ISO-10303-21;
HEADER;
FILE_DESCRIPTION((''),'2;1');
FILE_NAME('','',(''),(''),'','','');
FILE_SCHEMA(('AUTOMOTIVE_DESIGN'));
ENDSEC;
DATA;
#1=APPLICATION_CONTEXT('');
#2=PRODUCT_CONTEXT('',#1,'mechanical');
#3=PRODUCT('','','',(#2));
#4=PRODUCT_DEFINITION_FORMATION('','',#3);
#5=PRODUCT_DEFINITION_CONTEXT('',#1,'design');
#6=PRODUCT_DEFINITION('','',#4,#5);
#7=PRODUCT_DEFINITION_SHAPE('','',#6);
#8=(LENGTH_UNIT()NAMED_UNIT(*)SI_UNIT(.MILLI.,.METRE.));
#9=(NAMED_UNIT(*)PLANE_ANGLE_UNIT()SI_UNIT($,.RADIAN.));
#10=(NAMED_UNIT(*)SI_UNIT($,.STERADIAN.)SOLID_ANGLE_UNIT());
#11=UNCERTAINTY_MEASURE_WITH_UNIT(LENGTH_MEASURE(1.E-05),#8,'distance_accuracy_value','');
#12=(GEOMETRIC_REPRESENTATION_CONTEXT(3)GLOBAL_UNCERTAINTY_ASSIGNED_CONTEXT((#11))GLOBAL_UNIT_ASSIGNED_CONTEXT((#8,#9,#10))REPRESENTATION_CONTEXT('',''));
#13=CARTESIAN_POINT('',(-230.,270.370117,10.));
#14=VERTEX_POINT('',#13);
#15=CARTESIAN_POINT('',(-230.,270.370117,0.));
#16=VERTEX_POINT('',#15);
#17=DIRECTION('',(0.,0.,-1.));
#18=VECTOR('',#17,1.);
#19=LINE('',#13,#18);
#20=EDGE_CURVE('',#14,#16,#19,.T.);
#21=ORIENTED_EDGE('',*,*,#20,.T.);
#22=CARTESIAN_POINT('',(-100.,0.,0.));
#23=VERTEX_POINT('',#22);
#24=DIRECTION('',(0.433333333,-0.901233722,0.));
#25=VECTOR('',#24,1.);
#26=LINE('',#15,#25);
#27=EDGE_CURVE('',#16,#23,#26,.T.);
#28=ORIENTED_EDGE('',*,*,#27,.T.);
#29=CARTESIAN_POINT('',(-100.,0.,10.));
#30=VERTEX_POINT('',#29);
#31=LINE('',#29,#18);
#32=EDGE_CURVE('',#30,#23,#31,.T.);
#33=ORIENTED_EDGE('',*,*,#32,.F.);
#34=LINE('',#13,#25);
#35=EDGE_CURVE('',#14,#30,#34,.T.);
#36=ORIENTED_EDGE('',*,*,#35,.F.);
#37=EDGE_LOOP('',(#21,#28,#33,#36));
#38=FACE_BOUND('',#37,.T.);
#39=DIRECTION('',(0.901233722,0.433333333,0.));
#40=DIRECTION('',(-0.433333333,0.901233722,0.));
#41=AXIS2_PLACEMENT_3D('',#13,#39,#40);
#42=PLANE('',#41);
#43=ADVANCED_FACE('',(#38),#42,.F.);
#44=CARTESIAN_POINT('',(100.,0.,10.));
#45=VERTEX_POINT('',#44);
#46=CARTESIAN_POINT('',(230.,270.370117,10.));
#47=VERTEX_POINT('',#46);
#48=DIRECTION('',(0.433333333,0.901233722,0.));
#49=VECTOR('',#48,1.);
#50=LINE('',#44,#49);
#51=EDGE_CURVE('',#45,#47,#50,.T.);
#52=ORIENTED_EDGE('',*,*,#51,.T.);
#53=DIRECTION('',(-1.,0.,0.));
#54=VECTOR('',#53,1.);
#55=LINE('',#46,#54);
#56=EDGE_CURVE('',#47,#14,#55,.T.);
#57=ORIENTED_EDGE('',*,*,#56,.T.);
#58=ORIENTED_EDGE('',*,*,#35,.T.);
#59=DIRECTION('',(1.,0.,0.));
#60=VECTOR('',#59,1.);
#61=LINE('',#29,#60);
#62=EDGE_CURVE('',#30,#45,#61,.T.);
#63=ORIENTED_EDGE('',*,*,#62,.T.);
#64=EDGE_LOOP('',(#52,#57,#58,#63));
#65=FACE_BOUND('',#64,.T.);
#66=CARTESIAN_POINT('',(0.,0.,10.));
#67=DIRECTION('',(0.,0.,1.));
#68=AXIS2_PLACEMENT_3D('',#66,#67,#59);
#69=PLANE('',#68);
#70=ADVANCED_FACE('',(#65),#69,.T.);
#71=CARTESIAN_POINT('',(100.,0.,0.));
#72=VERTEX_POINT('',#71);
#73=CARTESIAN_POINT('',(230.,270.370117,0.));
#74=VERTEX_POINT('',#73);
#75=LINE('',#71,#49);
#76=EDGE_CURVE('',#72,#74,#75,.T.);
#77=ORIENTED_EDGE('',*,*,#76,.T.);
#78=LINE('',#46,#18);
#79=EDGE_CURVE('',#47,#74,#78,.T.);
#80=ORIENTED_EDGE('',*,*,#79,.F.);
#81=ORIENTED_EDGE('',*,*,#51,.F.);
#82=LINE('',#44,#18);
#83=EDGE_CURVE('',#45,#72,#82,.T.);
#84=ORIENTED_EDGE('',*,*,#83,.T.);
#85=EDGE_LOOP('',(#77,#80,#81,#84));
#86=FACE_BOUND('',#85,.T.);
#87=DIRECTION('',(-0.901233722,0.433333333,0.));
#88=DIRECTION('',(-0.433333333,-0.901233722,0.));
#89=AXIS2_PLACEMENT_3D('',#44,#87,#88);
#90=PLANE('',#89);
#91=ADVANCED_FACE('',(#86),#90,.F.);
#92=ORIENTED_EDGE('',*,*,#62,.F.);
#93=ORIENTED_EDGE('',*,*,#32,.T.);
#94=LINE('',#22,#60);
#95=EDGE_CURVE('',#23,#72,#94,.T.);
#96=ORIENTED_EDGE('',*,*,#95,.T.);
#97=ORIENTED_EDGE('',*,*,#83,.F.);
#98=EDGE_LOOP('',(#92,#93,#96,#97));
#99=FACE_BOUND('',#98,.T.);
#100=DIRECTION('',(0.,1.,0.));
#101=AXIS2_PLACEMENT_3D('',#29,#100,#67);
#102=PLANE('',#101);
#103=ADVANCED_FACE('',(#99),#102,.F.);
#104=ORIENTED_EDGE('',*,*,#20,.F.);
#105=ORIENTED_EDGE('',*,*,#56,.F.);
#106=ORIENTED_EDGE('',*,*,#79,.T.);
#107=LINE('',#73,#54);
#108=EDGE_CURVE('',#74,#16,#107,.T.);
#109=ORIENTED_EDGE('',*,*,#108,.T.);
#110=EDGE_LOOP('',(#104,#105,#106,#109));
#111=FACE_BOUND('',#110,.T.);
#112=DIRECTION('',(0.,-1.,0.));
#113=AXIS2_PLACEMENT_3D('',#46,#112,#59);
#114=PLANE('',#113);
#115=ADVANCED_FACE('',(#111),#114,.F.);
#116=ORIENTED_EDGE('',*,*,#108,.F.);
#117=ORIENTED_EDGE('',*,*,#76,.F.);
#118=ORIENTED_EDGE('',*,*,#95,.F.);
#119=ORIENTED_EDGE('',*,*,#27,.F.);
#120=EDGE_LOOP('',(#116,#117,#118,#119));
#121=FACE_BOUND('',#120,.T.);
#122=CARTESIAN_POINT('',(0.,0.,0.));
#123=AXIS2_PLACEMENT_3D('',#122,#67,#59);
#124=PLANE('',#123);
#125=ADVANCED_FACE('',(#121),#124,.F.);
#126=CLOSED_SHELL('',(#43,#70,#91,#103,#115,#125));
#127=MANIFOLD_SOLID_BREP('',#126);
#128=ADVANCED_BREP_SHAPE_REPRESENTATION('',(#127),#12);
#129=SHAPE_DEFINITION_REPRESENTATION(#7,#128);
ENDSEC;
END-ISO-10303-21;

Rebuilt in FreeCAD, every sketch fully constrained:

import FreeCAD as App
import Part
import Sketcher

V = App.Vector


def add_polygon(sketch, points):
    """Adds a closed chain of lines whose ends are joined by coincident constraints."""
    first, n = sketch.GeometryCount, len(points)
    for a, b in zip(points, points[1:] + points[:1]):
        sketch.addGeometry(Part.LineSegment(App.Vector(*a, 0), App.Vector(*b, 0)), False)
    for i in range(n):
        sketch.addConstraint(Sketcher.Constraint("Coincident", first + i, 2, first + (i + 1) % n, 1))

doc = App.newDocument("Part")
params = doc.addObject("Spreadsheet::Sheet", "Params")
for row, (alias, value) in enumerate([
    ("sketch1_width", "200 mm"),
    ("sketch1_width2", "460 mm"),
    ("sketch1_length", "300 mm"),
    ("pad1_length", "10 mm"),
], start=1):
    params.set(f"A{row}", alias)
    params.set(f"B{row}", "=" + value)
    params.setAlias(f"B{row}", alias)

body = doc.addObject("PartDesign::Body", "Body")

sketch1 = doc.addObject("Sketcher::SketchObject", "Sketch")
body.addObject(sketch1)
sketch1.AttachmentSupport = (doc.XY_Plane, [""])
sketch1.MapMode = "FlatFace"
add_polygon(sketch1, [(-100, 0), (100, 0), (230, 270.370117), (-230, 270.370117)])
sketch1.addConstraint(Sketcher.Constraint("Horizontal", 0))
sketch1.addConstraint(Sketcher.Constraint("Horizontal", 2))
sketch1.addConstraint(Sketcher.Constraint("Symmetric", 0, 2, 3, 2, -1, 1))
sketch1.addConstraint(Sketcher.Constraint("Equal", 1, 3))
sketch1.addConstraint(Sketcher.Constraint("DistanceX", 0, 1, 0, 2, 200.0))
sketch1.addConstraint(Sketcher.Constraint("DistanceX", 2, 2, 2, 1, 460.0))
sketch1.addConstraint(Sketcher.Constraint("Distance", 1, 300.0))
sketch1.setExpression("Constraints[8]", "Params.sketch1_width")
sketch1.setExpression("Constraints[9]", "Params.sketch1_width2")
sketch1.setExpression("Constraints[10]", "Params.sketch1_length")
pad1 = doc.addObject("PartDesign::Pad", "Pad")
body.addObject(pad1)
pad1.Profile = sketch1
pad1.setExpression("Length", "Params.pad1_length")

doc.recompute()
